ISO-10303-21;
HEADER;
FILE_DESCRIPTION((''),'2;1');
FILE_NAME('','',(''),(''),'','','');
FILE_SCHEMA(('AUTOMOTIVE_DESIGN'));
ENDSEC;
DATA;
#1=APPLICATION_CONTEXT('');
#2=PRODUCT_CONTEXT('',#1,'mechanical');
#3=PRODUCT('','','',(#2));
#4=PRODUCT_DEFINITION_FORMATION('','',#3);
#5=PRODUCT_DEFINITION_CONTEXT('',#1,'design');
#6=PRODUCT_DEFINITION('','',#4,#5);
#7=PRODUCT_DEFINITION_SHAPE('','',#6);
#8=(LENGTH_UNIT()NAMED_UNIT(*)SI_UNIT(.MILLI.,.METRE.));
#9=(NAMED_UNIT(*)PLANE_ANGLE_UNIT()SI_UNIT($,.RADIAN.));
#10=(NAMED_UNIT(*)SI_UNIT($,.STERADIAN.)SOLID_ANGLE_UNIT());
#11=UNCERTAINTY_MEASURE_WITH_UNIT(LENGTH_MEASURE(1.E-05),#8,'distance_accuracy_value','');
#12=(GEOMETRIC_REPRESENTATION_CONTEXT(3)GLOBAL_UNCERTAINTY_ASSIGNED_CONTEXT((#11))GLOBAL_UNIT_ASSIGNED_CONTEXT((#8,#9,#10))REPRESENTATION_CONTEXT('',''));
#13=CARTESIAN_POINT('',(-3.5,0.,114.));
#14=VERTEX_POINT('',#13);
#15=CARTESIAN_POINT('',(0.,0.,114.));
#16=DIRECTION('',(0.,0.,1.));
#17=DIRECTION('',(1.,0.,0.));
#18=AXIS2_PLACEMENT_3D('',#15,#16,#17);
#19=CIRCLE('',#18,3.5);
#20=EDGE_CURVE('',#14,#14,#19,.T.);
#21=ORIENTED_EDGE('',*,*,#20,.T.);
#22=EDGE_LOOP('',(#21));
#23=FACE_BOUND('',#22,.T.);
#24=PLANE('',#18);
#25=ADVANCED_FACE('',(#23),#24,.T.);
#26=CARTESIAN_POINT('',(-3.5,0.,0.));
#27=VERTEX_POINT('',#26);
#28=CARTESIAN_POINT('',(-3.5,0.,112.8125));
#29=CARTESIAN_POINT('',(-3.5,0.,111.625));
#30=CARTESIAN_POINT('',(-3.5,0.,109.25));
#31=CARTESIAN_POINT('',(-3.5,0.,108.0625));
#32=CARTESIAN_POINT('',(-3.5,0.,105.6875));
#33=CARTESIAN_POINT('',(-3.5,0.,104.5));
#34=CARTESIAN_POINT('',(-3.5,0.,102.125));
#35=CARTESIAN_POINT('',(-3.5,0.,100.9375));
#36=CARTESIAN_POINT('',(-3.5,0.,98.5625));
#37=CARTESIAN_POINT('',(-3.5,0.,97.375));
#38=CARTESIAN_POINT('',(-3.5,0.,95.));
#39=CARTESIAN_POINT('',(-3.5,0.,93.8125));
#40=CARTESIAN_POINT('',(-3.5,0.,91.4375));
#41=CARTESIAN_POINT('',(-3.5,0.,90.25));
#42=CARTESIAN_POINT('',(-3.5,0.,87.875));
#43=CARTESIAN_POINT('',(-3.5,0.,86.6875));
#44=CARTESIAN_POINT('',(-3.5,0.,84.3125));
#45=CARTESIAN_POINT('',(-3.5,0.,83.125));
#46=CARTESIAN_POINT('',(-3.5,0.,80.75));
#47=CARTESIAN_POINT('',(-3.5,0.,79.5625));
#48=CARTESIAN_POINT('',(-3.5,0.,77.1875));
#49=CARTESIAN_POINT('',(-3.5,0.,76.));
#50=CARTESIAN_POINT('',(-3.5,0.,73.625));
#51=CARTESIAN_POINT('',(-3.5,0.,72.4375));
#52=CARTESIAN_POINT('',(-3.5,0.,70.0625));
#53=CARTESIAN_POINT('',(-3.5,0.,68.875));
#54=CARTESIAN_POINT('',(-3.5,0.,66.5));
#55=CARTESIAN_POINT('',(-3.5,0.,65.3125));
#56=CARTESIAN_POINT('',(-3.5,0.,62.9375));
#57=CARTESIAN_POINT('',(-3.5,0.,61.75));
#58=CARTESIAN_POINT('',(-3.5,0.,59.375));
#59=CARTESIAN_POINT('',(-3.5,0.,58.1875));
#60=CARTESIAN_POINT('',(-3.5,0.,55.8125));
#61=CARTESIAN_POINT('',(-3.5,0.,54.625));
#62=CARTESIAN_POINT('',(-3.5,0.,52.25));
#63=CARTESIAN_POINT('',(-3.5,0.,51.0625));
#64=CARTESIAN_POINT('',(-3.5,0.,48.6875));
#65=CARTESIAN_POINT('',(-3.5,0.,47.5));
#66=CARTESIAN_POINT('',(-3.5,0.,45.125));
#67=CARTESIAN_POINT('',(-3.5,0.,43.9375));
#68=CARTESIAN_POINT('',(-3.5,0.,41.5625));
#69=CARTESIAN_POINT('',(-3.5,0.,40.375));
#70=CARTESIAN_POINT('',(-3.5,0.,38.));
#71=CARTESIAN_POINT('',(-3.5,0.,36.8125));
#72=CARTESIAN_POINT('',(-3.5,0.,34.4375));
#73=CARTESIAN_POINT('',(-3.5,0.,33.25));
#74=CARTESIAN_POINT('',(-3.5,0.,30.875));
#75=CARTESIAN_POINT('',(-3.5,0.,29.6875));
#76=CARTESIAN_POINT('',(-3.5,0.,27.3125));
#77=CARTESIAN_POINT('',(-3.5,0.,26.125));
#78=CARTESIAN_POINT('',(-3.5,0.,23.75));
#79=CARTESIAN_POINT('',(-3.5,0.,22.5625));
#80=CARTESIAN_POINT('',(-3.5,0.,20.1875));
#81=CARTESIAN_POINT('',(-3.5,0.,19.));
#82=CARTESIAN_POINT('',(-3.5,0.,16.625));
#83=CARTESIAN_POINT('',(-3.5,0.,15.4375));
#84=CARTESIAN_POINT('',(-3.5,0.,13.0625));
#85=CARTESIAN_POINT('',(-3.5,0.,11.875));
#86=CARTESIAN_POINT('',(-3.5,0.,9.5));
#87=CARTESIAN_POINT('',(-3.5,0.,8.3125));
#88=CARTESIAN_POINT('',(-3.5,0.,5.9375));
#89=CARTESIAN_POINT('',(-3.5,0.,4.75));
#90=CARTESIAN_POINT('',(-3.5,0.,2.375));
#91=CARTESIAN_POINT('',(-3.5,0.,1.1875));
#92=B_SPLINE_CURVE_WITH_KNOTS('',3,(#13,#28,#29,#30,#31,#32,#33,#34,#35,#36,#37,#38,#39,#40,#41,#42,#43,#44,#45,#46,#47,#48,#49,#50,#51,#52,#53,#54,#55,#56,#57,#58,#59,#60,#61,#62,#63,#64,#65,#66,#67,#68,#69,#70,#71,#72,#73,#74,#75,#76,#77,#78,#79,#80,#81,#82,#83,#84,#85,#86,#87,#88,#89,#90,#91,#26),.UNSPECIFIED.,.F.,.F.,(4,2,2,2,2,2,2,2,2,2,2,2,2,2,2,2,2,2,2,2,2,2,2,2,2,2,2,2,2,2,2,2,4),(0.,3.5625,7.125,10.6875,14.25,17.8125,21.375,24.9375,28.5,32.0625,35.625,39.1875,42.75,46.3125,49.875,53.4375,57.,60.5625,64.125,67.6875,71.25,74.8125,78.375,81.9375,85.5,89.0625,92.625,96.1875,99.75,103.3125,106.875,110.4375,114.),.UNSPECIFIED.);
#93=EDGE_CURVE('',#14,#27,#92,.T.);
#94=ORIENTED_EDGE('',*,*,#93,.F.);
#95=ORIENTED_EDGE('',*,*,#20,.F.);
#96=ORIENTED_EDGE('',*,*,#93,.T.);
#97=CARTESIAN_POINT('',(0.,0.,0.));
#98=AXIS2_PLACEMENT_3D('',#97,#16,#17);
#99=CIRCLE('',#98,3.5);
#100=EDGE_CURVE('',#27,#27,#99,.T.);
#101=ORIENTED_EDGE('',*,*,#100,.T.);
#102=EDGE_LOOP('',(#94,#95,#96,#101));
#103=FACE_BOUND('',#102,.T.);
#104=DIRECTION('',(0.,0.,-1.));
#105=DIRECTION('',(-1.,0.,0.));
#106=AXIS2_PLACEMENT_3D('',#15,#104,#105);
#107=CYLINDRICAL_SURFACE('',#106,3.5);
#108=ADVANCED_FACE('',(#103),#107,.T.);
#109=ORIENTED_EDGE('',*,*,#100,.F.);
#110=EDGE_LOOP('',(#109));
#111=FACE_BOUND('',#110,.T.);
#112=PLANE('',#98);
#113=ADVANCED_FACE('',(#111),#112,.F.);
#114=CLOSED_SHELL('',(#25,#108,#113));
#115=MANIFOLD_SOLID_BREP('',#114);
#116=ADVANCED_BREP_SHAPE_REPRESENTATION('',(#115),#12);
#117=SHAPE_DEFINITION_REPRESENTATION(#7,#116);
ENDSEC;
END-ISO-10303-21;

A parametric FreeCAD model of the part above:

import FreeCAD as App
import Part
import Sketcher
from FreeCAD import Vector
Q = App.Units.Quantity

doc = App.newDocument("Part")
body = doc.addObject("PartDesign::Body", "Body")

# Sketch on XY plane
sketch1 = doc.addObject("Sketcher::SketchObject", "Sketch")
body.addObject(sketch1)
sketch1.AttachmentSupport = (doc.XY_Plane, [""])
sketch1.MapMode = "FlatFace"
sketch1.addGeometry(Part.Circle(Vector(0, 0, 0), Vector(0, 0, 1), 3.5), False)
sketch1.addConstraint([
    Sketcher.Constraint("Coincident", 0, 3, -1, 1),
    Sketcher.Constraint("Diameter", 0, Q("7 mm")),
])
pad1 = doc.addObject("PartDesign::Pad", "Pad")
body.addObject(pad1)
pad1.Profile = sketch1
pad1.Length = 114

doc.recompute()
